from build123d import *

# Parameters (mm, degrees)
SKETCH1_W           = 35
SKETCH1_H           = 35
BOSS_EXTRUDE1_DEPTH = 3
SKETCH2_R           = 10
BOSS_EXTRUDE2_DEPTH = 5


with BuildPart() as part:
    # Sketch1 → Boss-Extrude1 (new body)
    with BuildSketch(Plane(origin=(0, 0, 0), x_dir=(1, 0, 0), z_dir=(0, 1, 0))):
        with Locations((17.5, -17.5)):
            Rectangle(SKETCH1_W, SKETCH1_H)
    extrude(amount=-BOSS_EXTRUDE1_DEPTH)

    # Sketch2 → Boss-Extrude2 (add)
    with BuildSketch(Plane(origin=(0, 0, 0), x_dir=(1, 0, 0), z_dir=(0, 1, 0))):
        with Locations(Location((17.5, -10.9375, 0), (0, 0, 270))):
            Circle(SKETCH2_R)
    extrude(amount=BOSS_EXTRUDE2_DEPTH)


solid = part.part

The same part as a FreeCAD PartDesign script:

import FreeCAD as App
import Part
import Sketcher

V = App.Vector

doc = App.newDocument("Part")
body = doc.addObject("PartDesign::Body", "Body")

# Sketch on XZ plane
sketch1 = body.newObject("Sketcher::SketchObject", "Sketch")
sketch1.AttachmentSupport = (doc.getObject("XZ_Plane"), [""])
sketch1.MapMode = "FlatFace"
sketch1.addGeometry([
    Part.LineSegment(V(0, 0, 0), V(0, 35, 0)),
    Part.LineSegment(V(0, 35, 0), V(35, 35, 0)),
    Part.LineSegment(V(35, 35, 0), V(35, 0, 0)),
    Part.LineSegment(V(35, 0, 0), V(0, 0, 0)),
], False)
sketch1.addConstraint([
    Sketcher.Constraint("Coincident", 0, 2, 1, 1),
    Sketcher.Constraint("Coincident", 1, 2, 2, 1),
    Sketcher.Constraint("Coincident", 2, 2, 3, 1),
    Sketcher.Constraint("Coincident", 3, 2, 0, 1),
    Sketcher.Constraint("Vertical", 0),
    Sketcher.Constraint("Horizontal", 1),
    Sketcher.Constraint("Vertical", 2),
    Sketcher.Constraint("Horizontal", 3),
    Sketcher.Constraint("Coincident", 3, 2, -1, 1),
    Sketcher.Constraint("Equal", 3, 0),
    Sketcher.Constraint("DistanceX", 1, 1, 1, 2, 35.0),
])
pad1 = body.newObject("PartDesign::Pad", "Pad")
pad1.Profile = sketch1
pad1.Length = 3

# Sketch on XZ plane
sketch2 = body.newObject("Sketcher::SketchObject", "Sketch001")
sketch2.AttachmentSupport = (doc.getObject("XZ_Plane"), [""])
sketch2.MapMode = "FlatFace"
sketch2.addGeometry(Part.Circle(V(17.5, 10.9375, 0), V(0, 0, 1), 10), False)
sketch2.addConstraint([
    Sketcher.Constraint("Diameter", 0, 20.0),
    Sketcher.Constraint("DistanceX", -1, 1, 0, 3, 17.5),
    Sketcher.Constraint("DistanceY", -1, 1, 0, 3, 10.9375),
])
pad2 = body.newObject("PartDesign::Pad", "Pad001")
pad2.Profile = sketch2
pad2.Length = 5
pad2.Reversed = True

doc.recompute()
